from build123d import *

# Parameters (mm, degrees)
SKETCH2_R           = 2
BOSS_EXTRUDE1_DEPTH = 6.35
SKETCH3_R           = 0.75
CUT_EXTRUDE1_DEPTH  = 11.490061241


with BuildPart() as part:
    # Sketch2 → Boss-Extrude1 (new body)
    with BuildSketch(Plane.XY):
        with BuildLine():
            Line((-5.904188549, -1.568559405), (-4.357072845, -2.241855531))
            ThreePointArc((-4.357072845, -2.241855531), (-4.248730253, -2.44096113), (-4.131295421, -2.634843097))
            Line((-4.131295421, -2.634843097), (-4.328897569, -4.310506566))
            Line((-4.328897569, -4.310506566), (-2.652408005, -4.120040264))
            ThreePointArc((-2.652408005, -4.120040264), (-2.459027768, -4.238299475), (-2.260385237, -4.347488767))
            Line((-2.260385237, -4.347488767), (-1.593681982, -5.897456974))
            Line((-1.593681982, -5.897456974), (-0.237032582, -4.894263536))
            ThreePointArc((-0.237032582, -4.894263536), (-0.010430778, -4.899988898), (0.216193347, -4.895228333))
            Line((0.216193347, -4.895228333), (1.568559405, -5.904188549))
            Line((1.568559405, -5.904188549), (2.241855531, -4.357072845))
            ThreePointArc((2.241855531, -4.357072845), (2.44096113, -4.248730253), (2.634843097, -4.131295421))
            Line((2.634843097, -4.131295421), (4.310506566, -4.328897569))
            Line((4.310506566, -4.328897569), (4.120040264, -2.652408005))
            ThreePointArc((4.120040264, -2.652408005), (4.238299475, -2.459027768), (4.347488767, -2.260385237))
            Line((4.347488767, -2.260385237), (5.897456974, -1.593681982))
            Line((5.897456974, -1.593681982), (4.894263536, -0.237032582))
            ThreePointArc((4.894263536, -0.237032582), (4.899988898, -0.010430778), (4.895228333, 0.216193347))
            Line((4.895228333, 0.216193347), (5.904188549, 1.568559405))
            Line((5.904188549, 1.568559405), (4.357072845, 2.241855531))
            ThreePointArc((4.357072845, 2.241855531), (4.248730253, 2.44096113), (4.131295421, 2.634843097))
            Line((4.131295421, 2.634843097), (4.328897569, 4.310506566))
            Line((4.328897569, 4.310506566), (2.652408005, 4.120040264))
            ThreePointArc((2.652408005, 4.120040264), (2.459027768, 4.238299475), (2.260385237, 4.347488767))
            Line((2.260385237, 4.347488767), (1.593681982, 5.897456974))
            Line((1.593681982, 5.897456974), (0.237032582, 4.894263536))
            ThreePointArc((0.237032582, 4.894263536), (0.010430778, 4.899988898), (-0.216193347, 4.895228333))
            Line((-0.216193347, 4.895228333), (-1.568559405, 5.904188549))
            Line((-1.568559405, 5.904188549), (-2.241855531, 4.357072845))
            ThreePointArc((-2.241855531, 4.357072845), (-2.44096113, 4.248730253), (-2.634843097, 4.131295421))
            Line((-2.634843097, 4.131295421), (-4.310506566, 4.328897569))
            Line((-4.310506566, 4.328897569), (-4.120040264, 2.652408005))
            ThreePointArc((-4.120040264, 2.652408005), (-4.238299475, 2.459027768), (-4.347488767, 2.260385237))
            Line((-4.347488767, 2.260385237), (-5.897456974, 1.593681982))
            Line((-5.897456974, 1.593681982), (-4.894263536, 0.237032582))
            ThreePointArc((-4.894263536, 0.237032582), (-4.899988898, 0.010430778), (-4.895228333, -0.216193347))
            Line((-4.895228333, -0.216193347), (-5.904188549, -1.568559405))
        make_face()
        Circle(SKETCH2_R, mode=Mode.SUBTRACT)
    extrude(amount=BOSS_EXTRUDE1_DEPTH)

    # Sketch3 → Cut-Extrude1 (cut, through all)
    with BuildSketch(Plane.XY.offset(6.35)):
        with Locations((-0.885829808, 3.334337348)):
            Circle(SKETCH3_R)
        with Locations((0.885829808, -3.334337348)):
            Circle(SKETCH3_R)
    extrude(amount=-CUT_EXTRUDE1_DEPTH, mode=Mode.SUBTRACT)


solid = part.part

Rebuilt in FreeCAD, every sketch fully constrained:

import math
import FreeCAD as App
import Part
import Sketcher

V = App.Vector
Q = App.Units.Quantity

doc = App.newDocument("Part")
body = doc.addObject("PartDesign::Body", "Body")

# Sketch on XY plane
sketch1 = doc.addObject("Sketcher::SketchObject", "Sketch")
body.addObject(sketch1)
sketch1.AttachmentSupport = (doc.XY_Plane, [""])
sketch1.MapMode = "FlatFace"
sketch1.addGeometry(Part.LineSegment(V(-5.9, -1.57, 0), V(-4.36, -2.24, 0)), False)
sketch1.addGeometry(Part.ArcOfCircle(Part.Circle(V(0, 0, 0), V(0, 0, 1), 4.9), math.radians(-152.77), math.radians(-147.47)), False)
sketch1.addGeometry(Part.LineSegment(V(-4.13, -2.63, 0), V(-4.33, -4.31, 0)), False)
sketch1.addGeometry(Part.LineSegment(V(-4.33, -4.31, 0), V(-2.65, -4.12, 0)), False)
sketch1.addGeometry(Part.ArcOfCircle(Part.Circle(V(0, 0, 0), V(0, 0, 1), 4.9), math.radians(-122.77), math.radians(-117.47)), False)
sketch1.addGeometry(Part.LineSegment(V(-2.26, -4.35, 0), V(-1.59, -5.9, 0)), False)
sketch1.addGeometry(Part.LineSegment(V(-1.59, -5.9, 0), V(-0.24, -4.89, 0)), False)
sketch1.addGeometry(Part.ArcOfCircle(Part.Circle(V(0, 0, 0), V(0, 0, 1), 4.9), math.radians(-92.77), math.radians(-87.47)), False)
sketch1.addGeometry(Part.LineSegment(V(0.22, -4.9, 0), V(1.57, -5.9, 0)), False)
sketch1.addGeometry(Part.LineSegment(V(1.57, -5.9, 0), V(2.24, -4.36, 0)), False)
sketch1.addGeometry(Part.ArcOfCircle(Part.Circle(V(0, 0, 0), V(0, 0, 1), 4.9), math.radians(-62.77), math.radians(-57.47)), False)
sketch1.addGeometry(Part.LineSegment(V(2.63, -4.13, 0), V(4.31, -4.33, 0)), False)
sketch1.addGeometry(Part.LineSegment(V(4.31, -4.33, 0), V(4.12, -2.65, 0)), False)
sketch1.addGeometry(Part.ArcOfCircle(Part.Circle(V(0, 0, 0), V(0, 0, 1), 4.9), math.radians(-32.77), math.radians(-27.47)), False)
sketch1.addGeometry(Part.LineSegment(V(4.35, -2.26, 0), V(5.9, -1.59, 0)), False)
sketch1.addGeometry(Part.LineSegment(V(5.9, -1.59, 0), V(4.89, -0.24, 0)), False)
sketch1.addGeometry(Part.ArcOfCircle(Part.Circle(V(0, 0, 0), V(0, 0, 1), 4.9), math.radians(-2.77), math.radians(2.53)), False)
sketch1.addGeometry(Part.LineSegment(V(4.9, 0.22, 0), V(5.9, 1.57, 0)), False)
sketch1.addGeometry(Part.LineSegment(V(5.9, 1.57, 0), V(4.36, 2.24, 0)), False)
sketch1.addGeometry(Part.ArcOfCircle(Part.Circle(V(0, 0, 0), V(0, 0, 1), 4.9), math.radians(27.23), math.radians(32.53)), False)
sketch1.addGeometry(Part.LineSegment(V(4.13, 2.63, 0), V(4.33, 4.31, 0)), False)
sketch1.addGeometry(Part.LineSegment(V(4.33, 4.31, 0), V(2.65, 4.12, 0)), False)
sketch1.addGeometry(Part.ArcOfCircle(Part.Circle(V(0, 0, 0), V(0, 0, 1), 4.9), math.radians(57.23), math.radians(62.53)), False)
sketch1.addGeometry(Part.LineSegment(V(2.26, 4.35, 0), V(1.59, 5.9, 0)), False)
sketch1.addGeometry(Part.LineSegment(V(1.59, 5.9, 0), V(0.24, 4.89, 0)), False)
sketch1.addGeometry(Part.ArcOfCircle(Part.Circle(V(0, 0, 0), V(0, 0, 1), 4.9), math.radians(87.23), math.radians(92.53)), False)
sketch1.addGeometry(Part.LineSegment(V(-0.22, 4.9, 0), V(-1.57, 5.9, 0)), False)
sketch1.addGeometry(Part.LineSegment(V(-1.57, 5.9, 0), V(-2.24, 4.36, 0)), False)
sketch1.addGeometry(Part.ArcOfCircle(Part.Circle(V(0, 0, 0), V(0, 0, 1), 4.9), math.radians(117.23), math.radians(122.53)), False)
sketch1.addGeometry(Part.LineSegment(V(-2.63, 4.13, 0), V(-4.31, 4.33, 0)), False)
sketch1.addGeometry(Part.LineSegment(V(-4.31, 4.33, 0), V(-4.12, 2.65, 0)), False)
sketch1.addGeometry(Part.ArcOfCircle(Part.Circle(V(0, 0, 0), V(0, 0, 1), 4.9), math.radians(147.23), math.radians(152.53)), False)
sketch1.addGeometry(Part.LineSegment(V(-4.35, 2.26, 0), V(-5.9, 1.59, 0)), False)
sketch1.addGeometry(Part.LineSegment(V(-5.9, 1.59, 0), V(-4.89, 0.24, 0)), False)
sketch1.addGeometry(Part.ArcOfCircle(Part.Circle(V(0, 0, 0), V(0, 0, 1), 4.9), math.radians(177.23), math.radians(182.53)), False)
sketch1.addGeometry(Part.LineSegment(V(-4.9, -0.22, 0), V(-5.9, -1.57, 0)), False)
sketch1.addGeometry(Part.Circle(V(0, 0, 0), V(0, 0, 1), 2), False)
sketch1.addConstraint(Sketcher.Constraint("Coincident", 0, 2, 1, 1))
sketch1.addConstraint(Sketcher.Constraint("Coincident", 1, 2, 2, 1))
sketch1.addConstraint(Sketcher.Constraint("Coincident", 2, 2, 3, 1))
sketch1.addConstraint(Sketcher.Constraint("Coincident", 3, 2, 4, 1))
sketch1.addConstraint(Sketcher.Constraint("Coincident", 4, 2, 5, 1))
sketch1.addConstraint(Sketcher.Constraint("Coincident", 5, 2, 6, 1))
sketch1.addConstraint(Sketcher.Constraint("Coincident", 6, 2, 7, 1))
sketch1.addConstraint(Sketcher.Constraint("Coincident", 7, 2, 8, 1))
sketch1.addConstraint(Sketcher.Constraint("Coincident", 8, 2, 9, 1))
sketch1.addConstraint(Sketcher.Constraint("Coincident", 9, 2, 10, 1))
sketch1.addConstraint(Sketcher.Constraint("Coincident", 10, 2, 11, 1))
sketch1.addConstraint(Sketcher.Constraint("Coincident", 11, 2, 12, 1))
sketch1.addConstraint(Sketcher.Constraint("Coincident", 12, 2, 13, 1))
sketch1.addConstraint(Sketcher.Constraint("Coincident", 13, 2, 14, 1))
sketch1.addConstraint(Sketcher.Constraint("Coincident", 14, 2, 15, 1))
sketch1.addConstraint(Sketcher.Constraint("Coincident", 15, 2, 16, 1))
sketch1.addConstraint(Sketcher.Constraint("Coincident", 16, 2, 17, 1))
sketch1.addConstraint(Sketcher.Constraint("Coincident", 17, 2, 18, 1))
sketch1.addConstraint(Sketcher.Constraint("Coincident", 18, 2, 19, 1))
sketch1.addConstraint(Sketcher.Constraint("Coincident", 19, 2, 20, 1))
sketch1.addConstraint(Sketcher.Constraint("Coincident", 20, 2, 21, 1))
sketch1.addConstraint(Sketcher.Constraint("Coincident", 21, 2, 22, 1))
sketch1.addConstraint(Sketcher.Constraint("Coincident", 22, 2, 23, 1))
sketch1.addConstraint(Sketcher.Constraint("Coincident", 23, 2, 24, 1))
sketch1.addConstraint(Sketcher.Constraint("Coincident", 24, 2, 25, 1))
sketch1.addConstraint(Sketcher.Constraint("Coincident", 25, 2, 26, 1))
sketch1.addConstraint(Sketcher.Constraint("Coincident", 26, 2, 27, 1))
sketch1.addConstraint(Sketcher.Constraint("Coincident", 27, 2, 28, 1))
sketch1.addConstraint(Sketcher.Constraint("Coincident", 28, 2, 29, 1))
sketch1.addConstraint(Sketcher.Constraint("Coincident", 29, 2, 30, 1))
sketch1.addConstraint(Sketcher.Constraint("Coincident", 30, 2, 31, 1))
sketch1.addConstraint(Sketcher.Constraint("Coincident", 31, 2, 32, 1))
sketch1.addConstraint(Sketcher.Constraint("Coincident", 32, 2, 33, 1))
sketch1.addConstraint(Sketcher.Constraint("Coincident", 33, 2, 34, 1))
sketch1.addConstraint(Sketcher.Constraint("Coincident", 34, 2, 35, 1))
sketch1.addConstraint(Sketcher.Constraint("Coincident", 35, 2, 0, 1))
sketch1.addConstraint(Sketcher.Constraint("Coincident", 1, 3, -1, 1))
sketch1.addConstraint(Sketcher.Constraint("Coincident", 4, 3, -1, 1))
sketch1.addConstraint(Sketcher.Constraint("Coincident", 7, 3, -1, 1))
sketch1.addConstraint(Sketcher.Constraint("Coincident", 10, 3, -1, 1))
sketch1.addConstraint(Sketcher.Constraint("Coincident", 13, 3, -1, 1))
sketch1.addConstraint(Sketcher.Constraint("Coincident", 16, 3, -1, 1))
sketch1.addConstraint(Sketcher.Constraint("Coincident", 19, 3, -1, 1))
sketch1.addConstraint(Sketcher.Constraint("Coincident", 22, 3, -1, 1))
sketch1.addConstraint(Sketcher.Constraint("Coincident", 25, 3, -1, 1))
sketch1.addConstraint(Sketcher.Constraint("Coincident", 28, 3, -1, 1))
sketch1.addConstraint(Sketcher.Constraint("Coincident", 31, 3, -1, 1))
sketch1.addConstraint(Sketcher.Constraint("Coincident", 34, 3, -1, 1))
sketch1.addConstraint(Sketcher.Constraint("Coincident", 36, 3, -1, 1))
sketch1.addConstraint(Sketcher.Constraint("Equal", 1, 4))
sketch1.addConstraint(Sketcher.Constraint("Equal", 4, 7))
sketch1.addConstraint(Sketcher.Constraint("Equal", 7, 10))
sketch1.addConstraint(Sketcher.Constraint("Equal", 10, 13))
sketch1.addConstraint(Sketcher.Constraint("Equal", 13, 16))
sketch1.addConstraint(Sketcher.Constraint("Equal", 16, 19))
sketch1.addConstraint(Sketcher.Constraint("Equal", 19, 22))
sketch1.addConstraint(Sketcher.Constraint("Equal", 22, 25))
sketch1.addConstraint(Sketcher.Constraint("Equal", 25, 28))
sketch1.addConstraint(Sketcher.Constraint("Equal", 28, 31))
sketch1.addConstraint(Sketcher.Constraint("Equal", 31, 34))
sketch1.addConstraint(Sketcher.Constraint("Symmetric", 2, 2, 20, 2, -1, 1))
sketch1.addConstraint(Sketcher.Constraint("Symmetric", 5, 2, 23, 2, -1, 1))
sketch1.addConstraint(Sketcher.Constraint("Symmetric", 8, 2, 26, 2, -1, 1))
sketch1.addConstraint(Sketcher.Constraint("Symmetric", 11, 2, 29, 2, -1, 1))
sketch1.addConstraint(Sketcher.Constraint("Symmetric", 14, 2, 32, 2, -1, 1))
sketch1.addConstraint(Sketcher.Constraint("Symmetric", 17, 2, 35, 2, -1, 1))
sketch1.addConstraint(Sketcher.Constraint("Perpendicular", 0, 9))
sketch1.addConstraint(Sketcher.Constraint("Perpendicular", 2, 11))
sketch1.addConstraint(Sketcher.Constraint("Perpendicular", 3, 12))
sketch1.addConstraint(Sketcher.Constraint("Perpendicular", 5, 14))
sketch1.addConstraint(Sketcher.Constraint("Perpendicular", 6, 15))
sketch1.addConstraint(Sketcher.Constraint("Perpendicular", 8, 17))
sketch1.addConstraint(Sketcher.Constraint("Perpendicular", 9, 18))
sketch1.addConstraint(Sketcher.Constraint("Perpendicular", 11, 20))
sketch1.addConstraint(Sketcher.Constraint("Perpendicular", 12, 21))
sketch1.addConstraint(Sketcher.Constraint("Perpendicular", 14, 23))
sketch1.addConstraint(Sketcher.Constraint("Perpendicular", 15, 24))
sketch1.addConstraint(Sketcher.Constraint("Perpendicular", 17, 26))
sketch1.addConstraint(Sketcher.Constraint("Perpendicular", 18, 27))
sketch1.addConstraint(Sketcher.Constraint("Perpendicular", 20, 29))
sketch1.addConstraint(Sketcher.Constraint("Perpendicular", 21, 30))
sketch1.addConstraint(Sketcher.Constraint("Perpendicular", 23, 32))
sketch1.addConstraint(Sketcher.Constraint("Perpendicular", 24, 33))
sketch1.addConstraint(Sketcher.Constraint("Perpendicular", 26, 35))
sketch1.addConstraint(Sketcher.Constraint("Equal", 0, 2))
sketch1.addConstraint(Sketcher.Constraint("Equal", 2, 3))
sketch1.addConstraint(Sketcher.Constraint("Equal", 3, 5))
sketch1.addConstraint(Sketcher.Constraint("Equal", 5, 6))
sketch1.addConstraint(Sketcher.Constraint("Equal", 6, 8))
sketch1.addConstraint(Sketcher.Constraint("Equal", 8, 9))
sketch1.addConstraint(Sketcher.Constraint("Equal", 9, 11))
sketch1.addConstraint(Sketcher.Constraint("Equal", 11, 12))
sketch1.addConstraint(Sketcher.Constraint("Equal", 12, 14))
sketch1.addConstraint(Sketcher.Constraint("Equal", 14, 15))
sketch1.addConstraint(Sketcher.Constraint("Equal", 15, 17))
sketch1.addConstraint(Sketcher.Constraint("Diameter", 36, Q("4 mm")))
sketch1.addConstraint(Sketcher.Constraint("Radius", 1, Q("4.9 mm")))
sketch1.addConstraint(Sketcher.Constraint("DistanceY", 5, 2, 0, 2, Q("3.655601 mm")))
sketch1.addConstraint(Sketcher.Constraint("DistanceX", 3, 2, 7, 2, Q("2.868601 mm")))
sketch1.addConstraint(Sketcher.Constraint("DistanceY", 8, 2, 4, 2, Q("1.5567 mm")))
sketch1.addConstraint(Sketcher.Constraint("DistanceX", 3, 2, -1, 1, Q("2.652408 mm")))
sketch1.addConstraint(Sketcher.Constraint("DistanceY", 4, 2, -1, 1, Q("4.347489 mm")))
sketch1.addConstraint(Sketcher.Constraint("DistanceX", 5, 2, -1, 1, Q("1.593682 mm")))
sketch1.addConstraint(Sketcher.Constraint("DistanceY", 2, 2, 0, 2, Q("2.068651 mm")))
pad1 = doc.addObject("PartDesign::Pad", "Pad")
body.addObject(pad1)
pad1.Profile = sketch1
pad1.Length = 6.35

# Sketch on XY plane
sketch2 = doc.addObject("Sketcher::SketchObject", "Sketch001")
body.addObject(sketch2)
sketch2.AttachmentSupport = (doc.XY_Plane, [""])
sketch2.MapMode = "FlatFace"
sketch2.AttachmentOffset = App.Placement(V(0, 0, 6.35), App.Rotation())
sketch2.addGeometry(Part.Circle(V(-0.9, 3.3, 0), V(0, 0, 1), 0.8), False)
sketch2.addGeometry(Part.Circle(V(0.9, -3.3, 0), V(0, 0, 1), 0.8), False)
sketch2.addConstraint(Sketcher.Constraint("Equal", 0, 1))
sketch2.addConstraint(Sketcher.Constraint("Symmetric", 0, 3, 1, 3, -1, 1))
sketch2.addConstraint(Sketcher.Constraint("Diameter", 0, Q("1.5 mm")))
sketch2.addConstraint(Sketcher.Constraint("DistanceX", 0, 3, -1, 1, Q("0.88583 mm")))
sketch2.addConstraint(Sketcher.Constraint("DistanceY", -1, 1, 0, 3, Q("3.334337 mm")))
pocket1 = doc.addObject("PartDesign::Pocket", "Pocket")
body.addObject(pocket1)
pocket1.Profile = sketch2
pocket1.Type = "ThroughAll"

doc.recompute()
